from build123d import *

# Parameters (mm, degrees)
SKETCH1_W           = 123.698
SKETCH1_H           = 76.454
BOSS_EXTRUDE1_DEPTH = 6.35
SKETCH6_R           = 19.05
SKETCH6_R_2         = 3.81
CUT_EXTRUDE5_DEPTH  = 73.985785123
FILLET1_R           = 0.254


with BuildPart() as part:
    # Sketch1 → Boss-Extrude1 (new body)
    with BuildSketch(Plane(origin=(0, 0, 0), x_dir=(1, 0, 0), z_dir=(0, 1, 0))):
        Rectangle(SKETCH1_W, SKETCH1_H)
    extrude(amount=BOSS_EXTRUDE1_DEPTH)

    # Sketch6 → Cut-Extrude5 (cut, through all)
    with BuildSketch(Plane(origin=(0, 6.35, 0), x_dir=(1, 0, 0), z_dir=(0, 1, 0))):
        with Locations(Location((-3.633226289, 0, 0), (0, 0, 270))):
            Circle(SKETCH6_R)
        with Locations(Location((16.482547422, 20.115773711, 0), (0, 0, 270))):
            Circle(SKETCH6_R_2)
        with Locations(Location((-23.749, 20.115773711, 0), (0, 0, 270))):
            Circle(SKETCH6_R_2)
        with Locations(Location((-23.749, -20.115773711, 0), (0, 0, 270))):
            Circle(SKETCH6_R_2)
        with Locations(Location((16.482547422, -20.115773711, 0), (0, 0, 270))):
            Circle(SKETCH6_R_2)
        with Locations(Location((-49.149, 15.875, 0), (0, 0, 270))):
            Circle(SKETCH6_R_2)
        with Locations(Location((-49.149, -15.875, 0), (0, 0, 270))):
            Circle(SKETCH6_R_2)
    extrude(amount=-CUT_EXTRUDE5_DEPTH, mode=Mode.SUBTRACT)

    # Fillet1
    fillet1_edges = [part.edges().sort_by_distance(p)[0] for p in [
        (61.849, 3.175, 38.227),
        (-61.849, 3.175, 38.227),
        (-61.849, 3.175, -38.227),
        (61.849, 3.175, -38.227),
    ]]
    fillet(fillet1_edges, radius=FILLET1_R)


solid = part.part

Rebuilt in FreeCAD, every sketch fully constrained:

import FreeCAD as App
import Part
import Sketcher

V = App.Vector
Q = App.Units.Quantity


def edges_at(feature, points):
    """Names of the edges that pass closest to the given points."""
    edges = feature.Shape.Edges
    near = lambda p: min(range(len(edges)), key=lambda i: edges[i].distToShape(Part.Vertex(*p))[0])
    return sorted({f"Edge{near(p) + 1}" for p in points})


def add_polygon(sketch, points):
    """Adds a closed chain of lines whose ends are joined by coincident constraints."""
    first, n = sketch.GeometryCount, len(points)
    for a, b in zip(points, points[1:] + points[:1]):
        sketch.addGeometry(Part.LineSegment(App.Vector(*a, 0), App.Vector(*b, 0)), False)
    for i in range(n):
        sketch.addConstraint(Sketcher.Constraint("Coincident", first + i, 2, first + (i + 1) % n, 1))

doc = App.newDocument("Part")
params = doc.addObject("Spreadsheet::Sheet", "Params")
for row, (alias, value) in enumerate([
    ("sketch1_width", "4.87 in"),
    ("sketch1_height", "3.01 in"),
    ("pad1_length", "0.25 in"),
    ("sketch2_diameter", "1.5 in"),
    ("sketch2_diameter2", "0.3 in"),
    ("fillet_radius", "0.01 in"),
], start=1):
    params.set(f"A{row}", alias)
    params.set(f"B{row}", "=" + value)
    params.setAlias(f"B{row}", alias)

body = doc.addObject("PartDesign::Body", "Body")

# Sketch on XZ plane
sketch1 = body.newObject("Sketcher::SketchObject", "Sketch")
sketch1.AttachmentSupport = (doc.getObject("XZ_Plane"), [""])
sketch1.MapMode = "FlatFace"
add_polygon(sketch1, [(-61.849, -38.227), (-61.849, 38.227), (61.849, 38.227), (61.849, -38.227)])  # lines 0-3
sketch1.addConstraint([
    Sketcher.Constraint("Vertical", 0),
    Sketcher.Constraint("Horizontal", 1),
    Sketcher.Constraint("Vertical", 2),
    Sketcher.Constraint("Horizontal", 3),
    Sketcher.Constraint("Symmetric", 0, 2, 2, 2, -1, 1),
    Sketcher.Constraint("DistanceX", 1, 1, 1, 2, Q("4.87 in")),
    Sketcher.Constraint("DistanceY", 0, 1, 0, 2, Q("3.01 in")),
])
sketch1.setExpression("Constraints[9]", "Params.sketch1_width")
sketch1.setExpression("Constraints[10]", "Params.sketch1_height")
pad1 = body.newObject("PartDesign::Pad", "Pad")
pad1.Profile = sketch1
pad1.setExpression("Length", "Params.pad1_length")
pad1.Reversed = True

# Sketch on XZ plane
sketch2 = body.newObject("Sketcher::SketchObject", "Sketch001")
sketch2.AttachmentSupport = (doc.getObject("XZ_Plane"), [""])
sketch2.MapMode = "FlatFace"
sketch2.AttachmentOffset = App.Placement(V(0, 0, -0.25 * 25.4), App.Rotation())
sketch2.addGeometry([
    Part.Circle(V(-3.633226, 0, 0), V(0, 0, 1), 19.05),  # 0
    Part.Circle(V(16.482547, -20.115774, 0), V(0, 0, 1), 3.81),  # 1
    Part.Circle(V(-23.749, -20.115774, 0), V(0, 0, 1), 3.81),  # 2
    Part.Circle(V(-23.749, 20.115774, 0), V(0, 0, 1), 3.81),  # 3
    Part.Circle(V(16.482547, 20.115774, 0), V(0, 0, 1), 3.81),  # 4
    Part.Circle(V(-49.149, -15.875, 0), V(0, 0, 1), 3.81),  # 5
    Part.Circle(V(-49.149, 15.875, 0), V(0, 0, 1), 3.81),  # 6
], False)
sketch2.addConstraint([
    Sketcher.Constraint("Equal", 1, 2),
    Sketcher.Constraint("Equal", 2, 3),
    Sketcher.Constraint("Equal", 3, 4),
    Sketcher.Constraint("Equal", 4, 5),
    Sketcher.Constraint("Equal", 5, 6),
    Sketcher.Constraint("Symmetric", 2, 3, 3, 3, -1),
    Sketcher.Constraint("Symmetric", 1, 3, 4, 3, -1),
    Sketcher.Constraint("Symmetric", 5, 3, 6, 3, -1),
    Sketcher.Constraint("PointOnObject", 0, 3, -1),
    Sketcher.Constraint("Horizontal", 1, 3, 2, 3),
    Sketcher.Constraint("Diameter", 0, Q("1.5 in")),
    Sketcher.Constraint("Diameter", 1, Q("0.3 in")),
    Sketcher.Constraint("DistanceX", 5, 3, 2, 3, Q("1 in")),
    Sketcher.Constraint("DistanceY", 5, 3, 6, 3, Q("1.25 in")),
    Sketcher.Constraint("DistanceX", 2, 3, -1, 1, Q("0.935 in")),
    Sketcher.Constraint("DistanceX", 0, 3, -1, 1, 3.633226),
    Sketcher.Constraint("DistanceX", -1, 1, 1, 3, 16.482547),
    Sketcher.Constraint("DistanceY", 1, 3, -1, 1, 20.115774),
])
sketch2.setExpression("Constraints[10]", "Params.sketch2_diameter")
sketch2.setExpression("Constraints[11]", "Params.sketch2_diameter2")
pocket1 = body.newObject("PartDesign::Pocket", "Pocket")
pocket1.Profile = sketch2
pocket1.Type = "ThroughAll"
pocket1.Reversed = True
doc.recompute()

fillet = body.newObject("PartDesign::Fillet", "Fillet")
fillet.Base = (pocket1, edges_at(pocket1, [
    (61.849, 3.175, 38.227),
    (-61.849, 3.175, 38.227),
    (-61.849, 3.175, -38.227),
    (61.849, 3.175, -38.227),
]))
fillet.setExpression("Radius", "Params.fillet_radius")

doc.recompute()
